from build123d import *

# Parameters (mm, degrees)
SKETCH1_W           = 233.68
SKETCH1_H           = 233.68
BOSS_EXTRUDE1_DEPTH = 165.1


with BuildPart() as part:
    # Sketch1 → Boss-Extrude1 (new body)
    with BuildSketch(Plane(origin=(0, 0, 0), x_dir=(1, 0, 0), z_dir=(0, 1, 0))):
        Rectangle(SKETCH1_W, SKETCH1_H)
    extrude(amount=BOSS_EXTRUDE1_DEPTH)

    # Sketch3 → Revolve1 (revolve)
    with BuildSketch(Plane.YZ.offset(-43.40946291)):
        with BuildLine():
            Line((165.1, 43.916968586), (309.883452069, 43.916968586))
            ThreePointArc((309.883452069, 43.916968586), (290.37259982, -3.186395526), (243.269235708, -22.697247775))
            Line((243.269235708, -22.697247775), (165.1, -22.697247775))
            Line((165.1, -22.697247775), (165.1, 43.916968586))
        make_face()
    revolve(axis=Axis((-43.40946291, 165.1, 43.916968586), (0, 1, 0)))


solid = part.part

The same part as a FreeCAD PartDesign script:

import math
import FreeCAD as App
import Part
import Sketcher
Q = App.Units.Quantity


def add_polygon(sketch, points):
    """Adds a closed chain of lines whose ends are joined by coincident constraints."""
    first, n = sketch.GeometryCount, len(points)
    for a, b in zip(points, points[1:] + points[:1]):
        sketch.addGeometry(Part.LineSegment(App.Vector(*a, 0), App.Vector(*b, 0)), False)
    for i in range(n):
        sketch.addConstraint(Sketcher.Constraint("Coincident", first + i, 2, first + (i + 1) % n, 1))

doc = App.newDocument("Part")
body = doc.addObject("PartDesign::Body", "Body")

# Sketch on XZ plane
sketch1 = body.newObject("Sketcher::SketchObject", "Sketch")
sketch1.AttachmentSupport = (doc.getObject("XZ_Plane"), [""])
sketch1.MapMode = "FlatFace"
add_polygon(sketch1, [(-116.84, -116.84), (-116.84, 116.84), (116.84, 116.84), (116.84, -116.84)])  # lines 0-3
sketch1.addConstraint([
    Sketcher.Constraint("Vertical", 0),
    Sketcher.Constraint("Horizontal", 1),
    Sketcher.Constraint("Vertical", 2),
    Sketcher.Constraint("Horizontal", 3),
    Sketcher.Constraint("Symmetric", 0, 2, 2, 2, -1, 1),
    Sketcher.Constraint("Equal", 3, 0),
    Sketcher.Constraint("DistanceX", 1, 1, 1, 2, Q("9.2 in")),
])
pad1 = body.newObject("PartDesign::Pad", "Pad")
pad1.Profile = sketch1
pad1.Length = Q("6.5 in")
pad1.Reversed = True

# Sketch on YZ plane
sketch2 = body.newObject("Sketcher::SketchObject", "Sketch001")
sketch2.AttachmentSupport = (doc.getObject("YZ_Plane"), [""])
sketch2.MapMode = "FlatFace"
sketch2.AttachmentOffset = App.Placement(App.Vector(0, 0, -43.409463), App.Rotation())
sketch2.addGeometry([
    Part.LineSegment(App.Vector(309.883452, 43.916969, 0), App.Vector(165.1, 43.916969, 0)),
    Part.LineSegment(App.Vector(165.1, 43.916969, 0), App.Vector(165.1, -22.697248, 0)),
    Part.LineSegment(App.Vector(165.1, -22.697248, 0), App.Vector(243.269236, -22.697248, 0)),
    Part.ArcOfCircle(Part.Circle(App.Vector(243.269236, 43.916969, 0), App.Vector(0, 0, 1), 66.614216), math.radians(-90), math.radians(0)),
], False)
sketch2.addGeometry(Part.LineSegment(App.Vector(165.1, 43.916969, 0), App.Vector(309.883452, 43.916969, 0)), True)  # axis
sketch2.addConstraint([
    Sketcher.Constraint("Coincident", 0, 2, 1, 1),
    Sketcher.Constraint("Coincident", 1, 2, 2, 1),
    Sketcher.Constraint("Tangent", 2, 2, 3, 1),
    Sketcher.Constraint("Coincident", 3, 2, 0, 1),
    Sketcher.Constraint("Horizontal", 0),
    Sketcher.Constraint("Vertical", 1),
    Sketcher.Constraint("Horizontal", 2),
    Sketcher.Constraint("Horizontal", 4),
    Sketcher.Constraint("Coincident", 4, 1, 0, 2),
    Sketcher.Constraint("Horizontal", 3, 3, 0, 2),
    Sketcher.Constraint("Equal", 0, 4),
    Sketcher.Constraint("DistanceX", -1, 1, 0, 2, Q("6.5 in")),
    Sketcher.Constraint("Radius", 3, Q("66.614216 mm")),
    Sketcher.Constraint("DistanceX", 0, 2, 0, 1, Q("144.783452 mm")),
    Sketcher.Constraint("DistanceY", -1, 1, 3, 3, Q("43.916969 mm")),
])
revolution = body.newObject("PartDesign::Revolution", "Revolution")
revolution.Profile = sketch2
revolution.ReferenceAxis = (sketch2, ["Axis0"])
revolution.Angle = 360

doc.recompute()
